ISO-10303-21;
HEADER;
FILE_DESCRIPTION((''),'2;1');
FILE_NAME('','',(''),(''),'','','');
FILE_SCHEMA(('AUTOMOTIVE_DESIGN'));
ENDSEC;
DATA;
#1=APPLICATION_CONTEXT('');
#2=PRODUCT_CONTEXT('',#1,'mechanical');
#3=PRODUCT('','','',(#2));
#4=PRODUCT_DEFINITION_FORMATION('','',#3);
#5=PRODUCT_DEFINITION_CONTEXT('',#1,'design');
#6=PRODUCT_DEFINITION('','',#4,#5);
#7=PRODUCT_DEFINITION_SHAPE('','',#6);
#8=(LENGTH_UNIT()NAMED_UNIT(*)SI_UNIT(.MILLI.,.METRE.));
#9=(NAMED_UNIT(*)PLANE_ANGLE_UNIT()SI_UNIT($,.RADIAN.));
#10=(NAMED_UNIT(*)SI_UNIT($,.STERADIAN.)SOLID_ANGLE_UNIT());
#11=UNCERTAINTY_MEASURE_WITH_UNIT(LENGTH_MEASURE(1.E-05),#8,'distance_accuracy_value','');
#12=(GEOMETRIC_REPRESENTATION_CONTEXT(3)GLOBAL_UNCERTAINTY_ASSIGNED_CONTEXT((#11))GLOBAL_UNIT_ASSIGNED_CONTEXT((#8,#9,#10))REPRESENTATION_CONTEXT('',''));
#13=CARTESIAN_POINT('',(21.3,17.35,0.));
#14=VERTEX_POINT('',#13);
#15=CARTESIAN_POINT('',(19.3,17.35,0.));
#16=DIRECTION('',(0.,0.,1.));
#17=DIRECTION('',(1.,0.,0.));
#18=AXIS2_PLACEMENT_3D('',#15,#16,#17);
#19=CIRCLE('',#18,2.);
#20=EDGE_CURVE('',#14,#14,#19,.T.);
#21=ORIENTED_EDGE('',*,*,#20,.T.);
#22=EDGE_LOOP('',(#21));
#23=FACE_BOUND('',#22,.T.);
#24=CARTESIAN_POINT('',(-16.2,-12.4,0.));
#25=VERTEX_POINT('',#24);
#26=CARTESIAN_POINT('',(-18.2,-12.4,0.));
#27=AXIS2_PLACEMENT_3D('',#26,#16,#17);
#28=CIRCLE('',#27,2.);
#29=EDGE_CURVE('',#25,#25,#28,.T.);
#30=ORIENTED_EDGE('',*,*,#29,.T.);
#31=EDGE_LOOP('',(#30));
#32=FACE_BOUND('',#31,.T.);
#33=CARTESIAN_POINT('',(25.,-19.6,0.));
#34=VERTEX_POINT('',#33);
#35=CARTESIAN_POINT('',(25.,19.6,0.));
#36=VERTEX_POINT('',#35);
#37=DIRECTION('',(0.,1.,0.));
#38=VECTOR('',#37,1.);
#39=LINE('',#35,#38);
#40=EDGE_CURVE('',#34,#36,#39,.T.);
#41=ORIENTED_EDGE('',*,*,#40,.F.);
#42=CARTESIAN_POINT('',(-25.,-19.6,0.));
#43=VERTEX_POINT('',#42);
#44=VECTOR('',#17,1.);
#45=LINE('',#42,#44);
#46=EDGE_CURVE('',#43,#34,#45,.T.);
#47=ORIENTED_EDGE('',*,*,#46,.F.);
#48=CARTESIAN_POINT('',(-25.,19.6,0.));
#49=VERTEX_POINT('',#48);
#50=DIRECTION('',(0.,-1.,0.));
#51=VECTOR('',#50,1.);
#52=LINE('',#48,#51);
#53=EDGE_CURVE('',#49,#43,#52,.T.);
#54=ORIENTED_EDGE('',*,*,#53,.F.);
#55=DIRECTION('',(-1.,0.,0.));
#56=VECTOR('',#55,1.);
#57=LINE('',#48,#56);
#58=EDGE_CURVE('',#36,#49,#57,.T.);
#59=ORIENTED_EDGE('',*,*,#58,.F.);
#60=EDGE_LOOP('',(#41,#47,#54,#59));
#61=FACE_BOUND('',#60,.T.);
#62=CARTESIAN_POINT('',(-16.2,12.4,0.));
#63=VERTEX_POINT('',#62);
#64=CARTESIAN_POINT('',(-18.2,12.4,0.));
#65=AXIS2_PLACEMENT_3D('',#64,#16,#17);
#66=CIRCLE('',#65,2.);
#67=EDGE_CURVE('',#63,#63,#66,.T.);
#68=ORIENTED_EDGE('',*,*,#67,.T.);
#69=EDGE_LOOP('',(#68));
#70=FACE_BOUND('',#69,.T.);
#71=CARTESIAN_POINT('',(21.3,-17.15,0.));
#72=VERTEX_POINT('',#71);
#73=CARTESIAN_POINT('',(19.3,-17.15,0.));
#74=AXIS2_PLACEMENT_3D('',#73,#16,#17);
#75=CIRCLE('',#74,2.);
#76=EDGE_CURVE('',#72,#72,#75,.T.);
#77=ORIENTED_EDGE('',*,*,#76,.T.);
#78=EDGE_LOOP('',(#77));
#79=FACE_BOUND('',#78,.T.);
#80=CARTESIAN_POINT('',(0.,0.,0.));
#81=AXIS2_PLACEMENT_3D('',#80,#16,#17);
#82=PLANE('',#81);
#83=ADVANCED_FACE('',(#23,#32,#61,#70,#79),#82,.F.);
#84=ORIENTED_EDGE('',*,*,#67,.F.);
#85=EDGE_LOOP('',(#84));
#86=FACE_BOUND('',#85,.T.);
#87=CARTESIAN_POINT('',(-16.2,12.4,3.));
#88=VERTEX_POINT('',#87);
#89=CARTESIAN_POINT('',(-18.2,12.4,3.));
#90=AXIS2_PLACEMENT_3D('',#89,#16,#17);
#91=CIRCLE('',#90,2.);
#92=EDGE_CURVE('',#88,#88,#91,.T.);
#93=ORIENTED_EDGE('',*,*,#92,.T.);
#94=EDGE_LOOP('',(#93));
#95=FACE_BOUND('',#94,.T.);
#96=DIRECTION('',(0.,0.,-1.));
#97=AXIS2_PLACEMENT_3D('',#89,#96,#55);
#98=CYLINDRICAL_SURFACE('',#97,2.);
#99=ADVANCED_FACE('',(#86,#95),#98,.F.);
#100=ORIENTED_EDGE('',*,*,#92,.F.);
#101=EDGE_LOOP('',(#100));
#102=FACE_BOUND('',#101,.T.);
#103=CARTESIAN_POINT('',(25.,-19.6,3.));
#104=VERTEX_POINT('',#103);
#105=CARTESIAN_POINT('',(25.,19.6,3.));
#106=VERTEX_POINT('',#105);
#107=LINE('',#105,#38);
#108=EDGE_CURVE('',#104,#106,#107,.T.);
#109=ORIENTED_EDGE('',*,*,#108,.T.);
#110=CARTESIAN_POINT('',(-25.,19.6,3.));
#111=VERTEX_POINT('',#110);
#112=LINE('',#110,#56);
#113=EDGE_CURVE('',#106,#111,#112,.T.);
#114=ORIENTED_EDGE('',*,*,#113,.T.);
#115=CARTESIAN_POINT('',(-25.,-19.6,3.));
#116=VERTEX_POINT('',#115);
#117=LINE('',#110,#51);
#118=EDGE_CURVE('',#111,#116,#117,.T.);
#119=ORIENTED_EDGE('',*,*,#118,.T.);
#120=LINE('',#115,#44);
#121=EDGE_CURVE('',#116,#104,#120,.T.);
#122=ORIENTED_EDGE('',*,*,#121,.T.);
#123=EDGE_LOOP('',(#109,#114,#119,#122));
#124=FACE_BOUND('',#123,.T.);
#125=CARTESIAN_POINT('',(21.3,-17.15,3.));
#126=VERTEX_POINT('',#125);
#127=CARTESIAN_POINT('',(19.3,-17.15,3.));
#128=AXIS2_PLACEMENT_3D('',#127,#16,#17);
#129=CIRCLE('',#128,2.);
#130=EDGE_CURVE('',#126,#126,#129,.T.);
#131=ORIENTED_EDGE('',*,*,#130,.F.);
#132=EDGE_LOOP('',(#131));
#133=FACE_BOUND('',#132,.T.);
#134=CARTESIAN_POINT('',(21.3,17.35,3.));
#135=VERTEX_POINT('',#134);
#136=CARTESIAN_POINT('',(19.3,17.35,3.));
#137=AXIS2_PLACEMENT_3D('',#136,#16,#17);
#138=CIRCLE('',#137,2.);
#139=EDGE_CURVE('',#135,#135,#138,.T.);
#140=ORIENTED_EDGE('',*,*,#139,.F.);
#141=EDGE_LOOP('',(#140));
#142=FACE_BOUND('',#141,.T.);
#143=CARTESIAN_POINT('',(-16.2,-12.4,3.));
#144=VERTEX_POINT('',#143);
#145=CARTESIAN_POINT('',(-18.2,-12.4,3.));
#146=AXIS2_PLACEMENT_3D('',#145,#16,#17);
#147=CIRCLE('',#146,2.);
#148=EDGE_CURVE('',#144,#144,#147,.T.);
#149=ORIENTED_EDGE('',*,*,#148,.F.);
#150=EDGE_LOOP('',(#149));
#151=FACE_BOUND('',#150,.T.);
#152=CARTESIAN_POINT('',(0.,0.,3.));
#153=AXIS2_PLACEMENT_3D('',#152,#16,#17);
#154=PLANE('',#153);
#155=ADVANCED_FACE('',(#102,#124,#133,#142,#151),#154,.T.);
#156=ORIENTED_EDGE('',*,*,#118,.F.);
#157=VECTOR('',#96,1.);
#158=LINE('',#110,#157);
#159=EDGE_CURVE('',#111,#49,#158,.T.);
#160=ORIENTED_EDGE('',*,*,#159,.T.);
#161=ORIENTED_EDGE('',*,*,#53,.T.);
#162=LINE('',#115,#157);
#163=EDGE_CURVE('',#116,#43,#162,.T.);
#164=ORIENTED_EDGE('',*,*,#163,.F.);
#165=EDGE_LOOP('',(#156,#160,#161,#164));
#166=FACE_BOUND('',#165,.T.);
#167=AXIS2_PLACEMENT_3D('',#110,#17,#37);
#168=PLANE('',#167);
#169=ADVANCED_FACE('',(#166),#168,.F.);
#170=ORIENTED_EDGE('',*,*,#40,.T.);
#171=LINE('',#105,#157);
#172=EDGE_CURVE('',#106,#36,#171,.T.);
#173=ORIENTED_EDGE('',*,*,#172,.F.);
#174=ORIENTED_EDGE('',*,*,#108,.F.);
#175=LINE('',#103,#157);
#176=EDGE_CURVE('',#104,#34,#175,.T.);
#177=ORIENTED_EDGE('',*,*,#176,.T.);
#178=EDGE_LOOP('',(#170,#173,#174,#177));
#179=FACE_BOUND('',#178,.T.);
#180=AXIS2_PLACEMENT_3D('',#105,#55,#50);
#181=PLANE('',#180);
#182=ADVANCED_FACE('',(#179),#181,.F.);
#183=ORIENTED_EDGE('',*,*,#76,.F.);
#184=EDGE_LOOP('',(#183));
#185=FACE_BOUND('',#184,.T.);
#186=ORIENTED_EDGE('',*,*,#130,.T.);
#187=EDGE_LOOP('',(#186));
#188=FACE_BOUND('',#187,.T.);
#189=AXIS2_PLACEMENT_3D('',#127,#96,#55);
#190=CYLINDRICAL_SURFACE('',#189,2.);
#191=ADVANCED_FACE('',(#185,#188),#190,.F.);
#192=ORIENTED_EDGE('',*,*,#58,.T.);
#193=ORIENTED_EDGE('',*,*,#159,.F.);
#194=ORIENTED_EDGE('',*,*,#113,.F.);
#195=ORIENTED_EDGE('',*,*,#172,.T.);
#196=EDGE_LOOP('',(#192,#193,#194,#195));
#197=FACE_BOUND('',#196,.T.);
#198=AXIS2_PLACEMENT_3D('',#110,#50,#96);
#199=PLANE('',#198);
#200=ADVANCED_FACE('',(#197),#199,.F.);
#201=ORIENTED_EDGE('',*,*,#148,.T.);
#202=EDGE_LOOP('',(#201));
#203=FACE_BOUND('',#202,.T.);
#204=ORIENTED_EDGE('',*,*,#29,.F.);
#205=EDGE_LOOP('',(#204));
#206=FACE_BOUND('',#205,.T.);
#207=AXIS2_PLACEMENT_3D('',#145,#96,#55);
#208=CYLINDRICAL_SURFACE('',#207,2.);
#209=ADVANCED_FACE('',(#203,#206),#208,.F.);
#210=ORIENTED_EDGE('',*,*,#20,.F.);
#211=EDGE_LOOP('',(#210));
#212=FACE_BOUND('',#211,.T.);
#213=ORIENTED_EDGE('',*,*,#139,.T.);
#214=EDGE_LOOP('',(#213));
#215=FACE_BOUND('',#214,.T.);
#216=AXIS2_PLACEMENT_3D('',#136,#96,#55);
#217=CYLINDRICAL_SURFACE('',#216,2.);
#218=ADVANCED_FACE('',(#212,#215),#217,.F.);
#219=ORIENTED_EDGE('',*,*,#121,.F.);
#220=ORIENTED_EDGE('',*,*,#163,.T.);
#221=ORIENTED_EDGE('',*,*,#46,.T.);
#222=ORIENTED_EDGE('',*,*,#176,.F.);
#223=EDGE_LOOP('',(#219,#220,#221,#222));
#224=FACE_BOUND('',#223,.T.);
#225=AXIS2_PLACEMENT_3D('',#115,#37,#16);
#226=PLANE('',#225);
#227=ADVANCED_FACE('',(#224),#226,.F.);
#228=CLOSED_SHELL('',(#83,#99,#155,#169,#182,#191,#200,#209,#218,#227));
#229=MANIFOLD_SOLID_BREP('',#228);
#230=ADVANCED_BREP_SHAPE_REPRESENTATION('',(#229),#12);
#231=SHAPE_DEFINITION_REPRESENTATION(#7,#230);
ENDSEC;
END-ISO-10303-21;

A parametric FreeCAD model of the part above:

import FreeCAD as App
import Part
import Sketcher
from FreeCAD import Vector
Q = App.Units.Quantity

doc = App.newDocument("Part")
body = doc.addObject("PartDesign::Body", "Body")

# Sketch on XY plane
sketch1 = body.newObject("Sketcher::SketchObject", "Sketch")
sketch1.AttachmentSupport = (doc.getObject("XY_Plane"), [""])
sketch1.MapMode = "FlatFace"
sketch1.addGeometry(Part.LineSegment(Vector(-25, 19.6, 0), Vector(-25, -19.6, 0)), False)
sketch1.addGeometry(Part.LineSegment(Vector(-25, -19.6, 0), Vector(25, -19.6, 0)), False)
sketch1.addGeometry(Part.LineSegment(Vector(25, -19.6, 0), Vector(25, 19.6, 0)), False)
sketch1.addGeometry(Part.LineSegment(Vector(25, 19.6, 0), Vector(-25, 19.6, 0)), False)
sketch1.addGeometry(Part.Circle(Vector(-18.2, -12.4, 0), Vector(0, 0, 1), 2), False)
sketch1.addGeometry(Part.Circle(Vector(19.3, -17.1, 0), Vector(0, 0, 1), 2), False)
sketch1.addGeometry(Part.Circle(Vector(-18.2, 12.4, 0), Vector(0, 0, 1), 2), False)
sketch1.addGeometry(Part.Circle(Vector(19.3, 17.4, 0), Vector(0, 0, 1), 2), False)
sketch1.addConstraint(Sketcher.Constraint("Coincident", 0, 2, 1, 1))
sketch1.addConstraint(Sketcher.Constraint("Coincident", 1, 2, 2, 1))
sketch1.addConstraint(Sketcher.Constraint("Coincident", 2, 2, 3, 1))
sketch1.addConstraint(Sketcher.Constraint("Coincident", 3, 2, 0, 1))
sketch1.addConstraint(Sketcher.Constraint("Vertical", 0))
sketch1.addConstraint(Sketcher.Constraint("Horizontal", 1))
sketch1.addConstraint(Sketcher.Constraint("Vertical", 2))
sketch1.addConstraint(Sketcher.Constraint("Horizontal", 3))
sketch1.addConstraint(Sketcher.Constraint("Equal", 4, 5))
sketch1.addConstraint(Sketcher.Constraint("Equal", 5, 6))
sketch1.addConstraint(Sketcher.Constraint("Equal", 6, 7))
sketch1.addConstraint(Sketcher.Constraint("Symmetric", 0, 2, 2, 2, -1, 1))
sketch1.addConstraint(Sketcher.Constraint("Symmetric", 4, 3, 6, 3, -1))
sketch1.addConstraint(Sketcher.Constraint("Vertical", 5, 3, 7, 3))
sketch1.addConstraint(Sketcher.Constraint("Diameter", 4, Q("4 mm")))
sketch1.addConstraint(Sketcher.Constraint("DistanceX", 1, 1, 1, 2, Q("50 mm")))
sketch1.addConstraint(Sketcher.Constraint("DistanceY", 0, 2, 0, 1, Q("39.2 mm")))
sketch1.addConstraint(Sketcher.Constraint("DistanceY", 0, 2, 6, 3, Q("32 mm")))
sketch1.addConstraint(Sketcher.Constraint("DistanceX", 4, 3, -1, 1, Q("18.2 mm")))
sketch1.addConstraint(Sketcher.Constraint("DistanceX", -1, 1, 5, 3, Q("19.3 mm")))
sketch1.addConstraint(Sketcher.Constraint("DistanceY", 5, 3, 7, 3, Q("34.5 mm")))
sketch1.addConstraint(Sketcher.Constraint("DistanceY", 5, 3, -1, 1, Q("17.15 mm")))
pad1 = body.newObject("PartDesign::Pad", "Pad")
pad1.Profile = sketch1
pad1.Length = 3

doc.recompute()
